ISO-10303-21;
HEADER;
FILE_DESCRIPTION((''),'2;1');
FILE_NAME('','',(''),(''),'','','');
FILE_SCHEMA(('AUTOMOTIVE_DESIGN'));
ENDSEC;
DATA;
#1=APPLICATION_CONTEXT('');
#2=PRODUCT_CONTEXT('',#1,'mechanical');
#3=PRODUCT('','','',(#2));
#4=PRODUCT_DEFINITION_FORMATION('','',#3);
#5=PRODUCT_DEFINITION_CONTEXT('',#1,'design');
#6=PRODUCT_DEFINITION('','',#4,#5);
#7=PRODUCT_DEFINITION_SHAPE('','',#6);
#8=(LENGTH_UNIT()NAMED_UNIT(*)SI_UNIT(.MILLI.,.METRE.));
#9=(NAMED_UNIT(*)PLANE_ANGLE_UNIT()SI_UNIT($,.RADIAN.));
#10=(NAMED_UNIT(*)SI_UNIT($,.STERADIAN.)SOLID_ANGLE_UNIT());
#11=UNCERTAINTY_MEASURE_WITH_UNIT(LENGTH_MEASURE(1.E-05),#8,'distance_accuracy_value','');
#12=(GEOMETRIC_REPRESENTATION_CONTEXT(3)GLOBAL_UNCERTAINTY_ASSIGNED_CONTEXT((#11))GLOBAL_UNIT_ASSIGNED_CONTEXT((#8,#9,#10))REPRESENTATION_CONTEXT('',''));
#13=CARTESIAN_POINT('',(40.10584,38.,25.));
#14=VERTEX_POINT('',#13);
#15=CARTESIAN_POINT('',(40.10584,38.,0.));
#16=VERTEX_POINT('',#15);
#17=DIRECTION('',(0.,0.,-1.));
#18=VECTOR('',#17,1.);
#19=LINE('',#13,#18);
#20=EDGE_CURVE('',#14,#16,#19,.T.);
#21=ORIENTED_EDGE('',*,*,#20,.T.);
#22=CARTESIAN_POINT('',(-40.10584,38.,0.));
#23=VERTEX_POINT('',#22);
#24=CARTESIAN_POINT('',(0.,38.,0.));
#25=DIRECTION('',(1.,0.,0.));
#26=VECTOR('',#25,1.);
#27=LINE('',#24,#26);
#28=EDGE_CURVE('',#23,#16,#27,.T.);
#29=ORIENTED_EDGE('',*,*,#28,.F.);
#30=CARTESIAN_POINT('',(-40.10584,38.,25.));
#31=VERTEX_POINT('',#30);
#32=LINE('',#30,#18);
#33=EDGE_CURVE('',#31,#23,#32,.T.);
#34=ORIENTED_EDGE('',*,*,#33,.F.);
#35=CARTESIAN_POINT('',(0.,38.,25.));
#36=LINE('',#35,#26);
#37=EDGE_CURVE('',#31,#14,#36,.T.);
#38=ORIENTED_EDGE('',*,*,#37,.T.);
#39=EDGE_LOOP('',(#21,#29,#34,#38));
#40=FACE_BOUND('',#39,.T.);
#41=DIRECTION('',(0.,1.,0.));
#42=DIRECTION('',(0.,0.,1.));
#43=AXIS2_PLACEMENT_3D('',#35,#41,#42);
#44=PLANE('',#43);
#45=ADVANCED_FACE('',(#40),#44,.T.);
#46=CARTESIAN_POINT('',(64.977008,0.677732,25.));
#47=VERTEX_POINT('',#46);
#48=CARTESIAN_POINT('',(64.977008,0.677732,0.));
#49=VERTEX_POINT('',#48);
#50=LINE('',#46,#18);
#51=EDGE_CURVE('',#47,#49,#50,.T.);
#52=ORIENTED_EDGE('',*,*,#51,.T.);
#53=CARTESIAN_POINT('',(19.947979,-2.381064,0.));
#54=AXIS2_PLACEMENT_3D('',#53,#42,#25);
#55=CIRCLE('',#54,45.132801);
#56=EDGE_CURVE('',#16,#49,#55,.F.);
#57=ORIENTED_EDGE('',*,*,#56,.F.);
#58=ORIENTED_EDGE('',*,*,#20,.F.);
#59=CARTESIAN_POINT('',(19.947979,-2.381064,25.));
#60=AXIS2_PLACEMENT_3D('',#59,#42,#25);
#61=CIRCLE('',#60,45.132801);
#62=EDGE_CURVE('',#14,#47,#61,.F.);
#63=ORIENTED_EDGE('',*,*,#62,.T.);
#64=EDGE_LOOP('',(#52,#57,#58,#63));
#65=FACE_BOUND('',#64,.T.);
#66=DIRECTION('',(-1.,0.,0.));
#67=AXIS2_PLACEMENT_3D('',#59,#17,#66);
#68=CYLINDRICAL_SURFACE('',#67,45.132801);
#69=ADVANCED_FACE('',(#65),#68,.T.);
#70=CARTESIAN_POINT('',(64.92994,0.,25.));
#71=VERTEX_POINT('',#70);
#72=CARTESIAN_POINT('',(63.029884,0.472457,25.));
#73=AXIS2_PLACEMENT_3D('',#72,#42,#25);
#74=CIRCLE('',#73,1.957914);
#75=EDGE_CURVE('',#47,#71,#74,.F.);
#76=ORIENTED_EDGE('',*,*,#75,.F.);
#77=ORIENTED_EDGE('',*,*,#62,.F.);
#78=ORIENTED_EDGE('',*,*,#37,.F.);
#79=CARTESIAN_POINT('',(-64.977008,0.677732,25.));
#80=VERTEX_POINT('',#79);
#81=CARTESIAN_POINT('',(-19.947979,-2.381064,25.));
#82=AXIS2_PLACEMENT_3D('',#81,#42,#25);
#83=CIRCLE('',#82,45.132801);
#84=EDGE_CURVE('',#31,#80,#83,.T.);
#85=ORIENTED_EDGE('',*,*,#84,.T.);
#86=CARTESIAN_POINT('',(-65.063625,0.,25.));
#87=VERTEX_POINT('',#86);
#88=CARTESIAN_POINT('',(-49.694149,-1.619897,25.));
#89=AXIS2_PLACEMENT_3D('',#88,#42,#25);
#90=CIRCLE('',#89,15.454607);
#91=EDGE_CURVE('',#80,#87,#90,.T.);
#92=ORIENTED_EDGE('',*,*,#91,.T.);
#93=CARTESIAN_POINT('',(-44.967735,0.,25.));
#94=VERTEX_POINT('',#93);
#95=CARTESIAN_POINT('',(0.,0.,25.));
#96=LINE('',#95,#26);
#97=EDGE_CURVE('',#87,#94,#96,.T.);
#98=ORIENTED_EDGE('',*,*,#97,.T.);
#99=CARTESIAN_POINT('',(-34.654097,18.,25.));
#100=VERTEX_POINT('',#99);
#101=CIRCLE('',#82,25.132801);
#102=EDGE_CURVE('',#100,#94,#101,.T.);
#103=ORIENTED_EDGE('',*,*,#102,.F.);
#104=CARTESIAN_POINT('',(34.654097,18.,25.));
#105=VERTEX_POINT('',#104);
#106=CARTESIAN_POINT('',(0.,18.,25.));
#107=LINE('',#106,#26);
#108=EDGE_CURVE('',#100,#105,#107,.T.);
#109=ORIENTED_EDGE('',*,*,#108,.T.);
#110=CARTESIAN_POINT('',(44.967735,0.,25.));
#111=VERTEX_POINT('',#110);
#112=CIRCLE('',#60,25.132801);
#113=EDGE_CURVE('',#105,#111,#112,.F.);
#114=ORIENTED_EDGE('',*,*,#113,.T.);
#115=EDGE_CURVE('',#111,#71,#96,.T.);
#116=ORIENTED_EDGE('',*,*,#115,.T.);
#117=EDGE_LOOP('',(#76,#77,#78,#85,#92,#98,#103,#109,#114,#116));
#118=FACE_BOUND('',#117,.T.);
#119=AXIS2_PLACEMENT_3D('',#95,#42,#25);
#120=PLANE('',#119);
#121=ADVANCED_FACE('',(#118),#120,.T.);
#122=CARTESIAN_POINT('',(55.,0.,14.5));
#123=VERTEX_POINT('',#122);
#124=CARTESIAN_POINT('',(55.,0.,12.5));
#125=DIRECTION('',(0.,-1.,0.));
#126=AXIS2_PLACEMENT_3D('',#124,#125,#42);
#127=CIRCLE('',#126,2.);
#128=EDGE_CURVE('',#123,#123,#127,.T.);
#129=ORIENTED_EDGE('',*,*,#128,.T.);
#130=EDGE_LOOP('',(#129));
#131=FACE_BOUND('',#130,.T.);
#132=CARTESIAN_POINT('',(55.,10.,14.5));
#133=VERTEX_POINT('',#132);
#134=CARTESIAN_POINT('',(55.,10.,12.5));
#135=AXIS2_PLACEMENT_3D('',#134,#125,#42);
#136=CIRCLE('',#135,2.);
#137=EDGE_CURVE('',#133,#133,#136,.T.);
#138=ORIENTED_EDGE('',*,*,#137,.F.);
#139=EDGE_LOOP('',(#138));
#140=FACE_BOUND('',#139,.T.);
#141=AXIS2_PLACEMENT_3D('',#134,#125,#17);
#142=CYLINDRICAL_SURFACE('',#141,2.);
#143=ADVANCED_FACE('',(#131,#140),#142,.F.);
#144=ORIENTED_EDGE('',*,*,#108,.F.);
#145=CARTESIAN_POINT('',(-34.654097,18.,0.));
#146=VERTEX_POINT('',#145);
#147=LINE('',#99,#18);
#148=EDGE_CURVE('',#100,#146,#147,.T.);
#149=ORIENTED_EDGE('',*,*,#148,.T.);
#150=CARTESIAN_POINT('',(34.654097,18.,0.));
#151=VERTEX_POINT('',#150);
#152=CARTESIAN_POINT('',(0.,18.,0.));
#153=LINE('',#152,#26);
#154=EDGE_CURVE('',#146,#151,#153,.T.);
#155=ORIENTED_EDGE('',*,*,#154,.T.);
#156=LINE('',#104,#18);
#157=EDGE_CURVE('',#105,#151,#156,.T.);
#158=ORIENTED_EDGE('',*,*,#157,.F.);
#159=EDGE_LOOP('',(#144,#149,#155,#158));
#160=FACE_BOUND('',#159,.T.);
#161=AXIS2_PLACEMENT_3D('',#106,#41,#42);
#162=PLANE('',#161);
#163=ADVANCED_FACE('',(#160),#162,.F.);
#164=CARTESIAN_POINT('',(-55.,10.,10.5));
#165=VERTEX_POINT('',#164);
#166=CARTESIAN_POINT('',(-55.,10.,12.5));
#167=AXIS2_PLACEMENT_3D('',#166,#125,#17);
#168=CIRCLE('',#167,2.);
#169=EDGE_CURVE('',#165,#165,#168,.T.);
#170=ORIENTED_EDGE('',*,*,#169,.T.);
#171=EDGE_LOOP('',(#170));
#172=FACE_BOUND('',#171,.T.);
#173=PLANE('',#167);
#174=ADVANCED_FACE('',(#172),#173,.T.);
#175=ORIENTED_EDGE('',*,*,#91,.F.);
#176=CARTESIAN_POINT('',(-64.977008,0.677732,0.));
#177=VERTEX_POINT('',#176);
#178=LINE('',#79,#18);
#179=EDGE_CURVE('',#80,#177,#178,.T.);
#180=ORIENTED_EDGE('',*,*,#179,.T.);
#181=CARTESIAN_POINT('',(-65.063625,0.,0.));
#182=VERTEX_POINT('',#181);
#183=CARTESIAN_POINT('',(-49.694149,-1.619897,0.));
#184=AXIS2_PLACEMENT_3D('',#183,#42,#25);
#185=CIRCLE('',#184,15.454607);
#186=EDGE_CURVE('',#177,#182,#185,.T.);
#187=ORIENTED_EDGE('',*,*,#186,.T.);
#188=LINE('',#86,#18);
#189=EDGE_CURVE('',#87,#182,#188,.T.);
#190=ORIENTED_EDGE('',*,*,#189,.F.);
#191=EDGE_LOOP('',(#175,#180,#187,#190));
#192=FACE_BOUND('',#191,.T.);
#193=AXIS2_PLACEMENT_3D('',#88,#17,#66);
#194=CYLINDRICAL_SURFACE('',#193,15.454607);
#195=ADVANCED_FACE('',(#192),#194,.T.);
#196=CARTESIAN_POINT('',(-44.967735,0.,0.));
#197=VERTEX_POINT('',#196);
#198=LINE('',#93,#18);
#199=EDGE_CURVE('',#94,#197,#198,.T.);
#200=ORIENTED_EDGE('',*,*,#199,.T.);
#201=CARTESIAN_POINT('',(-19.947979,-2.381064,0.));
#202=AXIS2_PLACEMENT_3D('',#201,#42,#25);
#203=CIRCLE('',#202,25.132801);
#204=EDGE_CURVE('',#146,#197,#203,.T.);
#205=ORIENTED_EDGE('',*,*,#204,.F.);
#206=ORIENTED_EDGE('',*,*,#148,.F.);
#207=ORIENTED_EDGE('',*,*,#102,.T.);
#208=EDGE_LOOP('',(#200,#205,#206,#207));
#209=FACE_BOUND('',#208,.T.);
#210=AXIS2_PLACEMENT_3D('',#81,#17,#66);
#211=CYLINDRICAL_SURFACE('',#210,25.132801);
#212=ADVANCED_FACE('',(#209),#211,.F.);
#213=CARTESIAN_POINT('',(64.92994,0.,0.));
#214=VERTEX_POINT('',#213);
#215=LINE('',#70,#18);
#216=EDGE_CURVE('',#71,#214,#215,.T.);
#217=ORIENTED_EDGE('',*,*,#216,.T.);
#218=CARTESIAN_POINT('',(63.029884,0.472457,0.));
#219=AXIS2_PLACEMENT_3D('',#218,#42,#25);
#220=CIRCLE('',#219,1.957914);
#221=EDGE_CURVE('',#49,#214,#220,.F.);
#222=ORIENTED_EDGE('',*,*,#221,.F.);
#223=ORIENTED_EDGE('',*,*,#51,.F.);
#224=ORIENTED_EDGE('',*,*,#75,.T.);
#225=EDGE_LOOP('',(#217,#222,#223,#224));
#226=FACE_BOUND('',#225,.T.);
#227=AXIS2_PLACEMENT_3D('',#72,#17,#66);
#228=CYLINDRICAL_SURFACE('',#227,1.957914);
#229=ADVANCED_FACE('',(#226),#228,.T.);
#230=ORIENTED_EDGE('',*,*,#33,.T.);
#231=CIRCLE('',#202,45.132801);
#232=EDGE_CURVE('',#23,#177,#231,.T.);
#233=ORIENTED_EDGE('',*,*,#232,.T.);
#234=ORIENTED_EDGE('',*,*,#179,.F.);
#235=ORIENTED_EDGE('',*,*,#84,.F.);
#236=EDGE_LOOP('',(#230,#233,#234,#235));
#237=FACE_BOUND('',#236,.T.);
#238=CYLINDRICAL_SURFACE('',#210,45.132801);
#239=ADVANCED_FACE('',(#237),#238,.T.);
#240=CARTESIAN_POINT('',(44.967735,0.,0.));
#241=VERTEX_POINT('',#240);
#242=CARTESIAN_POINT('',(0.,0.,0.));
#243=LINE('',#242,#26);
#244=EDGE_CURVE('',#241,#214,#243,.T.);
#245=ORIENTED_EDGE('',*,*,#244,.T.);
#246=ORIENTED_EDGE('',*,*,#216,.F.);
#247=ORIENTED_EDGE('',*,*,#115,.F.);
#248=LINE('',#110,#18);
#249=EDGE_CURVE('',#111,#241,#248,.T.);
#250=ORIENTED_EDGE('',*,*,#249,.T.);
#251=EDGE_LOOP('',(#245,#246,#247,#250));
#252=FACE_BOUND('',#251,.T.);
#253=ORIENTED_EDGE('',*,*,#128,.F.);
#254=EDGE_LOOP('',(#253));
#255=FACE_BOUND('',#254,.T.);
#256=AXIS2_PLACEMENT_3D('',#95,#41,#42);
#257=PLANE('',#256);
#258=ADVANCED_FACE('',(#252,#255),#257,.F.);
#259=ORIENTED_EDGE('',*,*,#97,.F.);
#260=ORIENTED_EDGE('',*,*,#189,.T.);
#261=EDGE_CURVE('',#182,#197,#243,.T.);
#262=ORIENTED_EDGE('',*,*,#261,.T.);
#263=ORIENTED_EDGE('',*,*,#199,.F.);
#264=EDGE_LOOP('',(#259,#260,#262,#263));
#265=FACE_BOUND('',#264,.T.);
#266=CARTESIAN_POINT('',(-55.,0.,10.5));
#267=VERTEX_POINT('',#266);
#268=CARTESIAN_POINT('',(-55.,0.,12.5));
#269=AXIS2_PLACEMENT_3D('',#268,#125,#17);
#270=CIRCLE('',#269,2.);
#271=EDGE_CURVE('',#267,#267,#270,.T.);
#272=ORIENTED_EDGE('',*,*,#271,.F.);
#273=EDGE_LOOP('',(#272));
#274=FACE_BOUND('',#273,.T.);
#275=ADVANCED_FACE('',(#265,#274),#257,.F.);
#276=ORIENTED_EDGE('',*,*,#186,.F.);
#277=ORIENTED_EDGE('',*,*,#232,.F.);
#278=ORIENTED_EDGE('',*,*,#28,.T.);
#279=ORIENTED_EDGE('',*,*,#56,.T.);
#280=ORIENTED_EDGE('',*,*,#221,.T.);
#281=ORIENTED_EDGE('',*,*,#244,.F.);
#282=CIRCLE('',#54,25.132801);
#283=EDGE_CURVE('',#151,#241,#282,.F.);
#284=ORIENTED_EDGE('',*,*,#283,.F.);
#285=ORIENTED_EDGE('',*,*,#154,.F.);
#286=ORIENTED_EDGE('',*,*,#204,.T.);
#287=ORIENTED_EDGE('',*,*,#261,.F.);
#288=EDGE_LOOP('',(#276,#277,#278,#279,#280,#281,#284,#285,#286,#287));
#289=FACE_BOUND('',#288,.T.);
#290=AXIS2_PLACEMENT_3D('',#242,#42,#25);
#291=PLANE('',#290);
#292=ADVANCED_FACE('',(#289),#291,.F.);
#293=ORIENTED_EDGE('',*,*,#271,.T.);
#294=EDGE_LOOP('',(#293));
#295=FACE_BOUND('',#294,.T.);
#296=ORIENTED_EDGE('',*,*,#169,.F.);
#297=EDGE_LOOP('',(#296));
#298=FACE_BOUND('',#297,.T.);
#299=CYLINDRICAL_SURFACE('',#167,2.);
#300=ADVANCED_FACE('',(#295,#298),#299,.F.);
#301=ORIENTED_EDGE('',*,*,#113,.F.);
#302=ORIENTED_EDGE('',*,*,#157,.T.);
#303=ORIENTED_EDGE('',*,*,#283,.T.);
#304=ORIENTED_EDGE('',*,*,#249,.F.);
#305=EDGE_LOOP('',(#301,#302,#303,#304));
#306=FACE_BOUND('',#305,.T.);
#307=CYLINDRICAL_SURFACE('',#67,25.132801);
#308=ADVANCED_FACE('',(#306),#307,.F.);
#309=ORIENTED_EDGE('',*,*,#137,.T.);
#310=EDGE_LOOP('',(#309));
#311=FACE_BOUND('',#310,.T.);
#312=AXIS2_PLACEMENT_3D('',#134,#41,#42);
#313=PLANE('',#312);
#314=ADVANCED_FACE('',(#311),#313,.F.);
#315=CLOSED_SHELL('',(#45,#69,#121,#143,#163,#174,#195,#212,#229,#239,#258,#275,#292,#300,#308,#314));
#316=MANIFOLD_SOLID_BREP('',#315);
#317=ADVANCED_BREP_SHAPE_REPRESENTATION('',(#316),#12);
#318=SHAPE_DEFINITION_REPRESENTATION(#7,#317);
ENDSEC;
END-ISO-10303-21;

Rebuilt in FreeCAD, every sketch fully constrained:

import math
import FreeCAD as App
import Part
import Sketcher
from FreeCAD import Vector

doc = App.newDocument("Part")
body = doc.addObject("PartDesign::Body", "Body")

sketch1 = body.newObject("Sketcher::SketchObject", "Sketch")
sketch1.AttachmentSupport = (doc.getObject("XY_Plane"), [""])
sketch1.MapMode = "FlatFace"
sketch1.addGeometry([
    Part.LineSegment(Vector(-34.654097, 18, 0), Vector(34.654097, 18, 0)),
    Part.ArcOfCircle(Part.Circle(Vector(19.947979, -2.381064, 0), Vector(0, 0, 1), 25.132801), math.radians(5.436314), math.radians(54.187369)),
    Part.LineSegment(Vector(44.967735, 0, 0), Vector(64.92994, 0, 0)),
    Part.ArcOfCircle(Part.Circle(Vector(63.029884, 0.472457, 0), Vector(0, 0, 1), 1.957914), math.radians(-13.963666), math.radians(6.018161)),
    Part.ArcOfCircle(Part.Circle(Vector(19.947979, -2.381064, 0), Vector(0, 0, 1), 45.132801), math.radians(3.886099), math.radians(63.472045)),
    Part.LineSegment(Vector(40.10584, 38, 0), Vector(-40.10584, 38, 0)),
    Part.ArcOfCircle(Part.Circle(Vector(-19.947979, -2.381064, 0), Vector(0, 0, 1), 45.132801), math.radians(116.527955), math.radians(176.113901)),
    Part.ArcOfCircle(Part.Circle(Vector(-49.694147, -1.619897, 0), Vector(0, 0, 1), 15.454608), math.radians(171.450168), math.radians(173.983409)),
    Part.LineSegment(Vector(-65.063625, 0, 0), Vector(-44.967735, 0, 0)),
    Part.ArcOfCircle(Part.Circle(Vector(-19.947979, -2.381064, 0), Vector(0, 0, 1), 25.132801), math.radians(125.812631), math.radians(174.563686)),
], False)
sketch1.addConstraint([
    Sketcher.Constraint("Coincident", 0, 2, 1, 2),
    Sketcher.Constraint("Coincident", 1, 1, 2, 1),
    Sketcher.Constraint("Coincident", 2, 2, 3, 1),
    Sketcher.Constraint("Coincident", 3, 2, 4, 1),
    Sketcher.Constraint("Coincident", 4, 2, 5, 1),
    Sketcher.Constraint("Coincident", 5, 2, 6, 1),
    Sketcher.Constraint("Coincident", 6, 2, 7, 1),
    Sketcher.Constraint("Coincident", 7, 2, 8, 1),
    Sketcher.Constraint("Coincident", 8, 2, 9, 2),
    Sketcher.Constraint("Coincident", 9, 1, 0, 1),
    Sketcher.Constraint("Horizontal", 0),
    Sketcher.Constraint("Horizontal", 2),
    Sketcher.Constraint("Horizontal", 5),
    Sketcher.Constraint("Horizontal", 8),
    Sketcher.Constraint("Coincident", 4, 3, 1, 3),
    Sketcher.Constraint("Coincident", 9, 3, 6, 3),
    Sketcher.Constraint("Equal", 4, 6),
    Sketcher.Constraint("Equal", 1, 9),
    Sketcher.Constraint("Symmetric", 1, 1, 8, 2, -1, 1),
    Sketcher.Constraint("Symmetric", 1, 3, 6, 3, -2),
    Sketcher.Constraint("Horizontal", 3, 2, 6, 2),
    Sketcher.Constraint("DistanceY", -1, 1, 0, 2, 18.0),
    Sketcher.Constraint("DistanceY", -1, 1, 4, 2, 38.0),
    Sketcher.Constraint("Radius", 1, 25.132801),
    Sketcher.Constraint("Radius", 4, 45.132801),
    Sketcher.Constraint("Radius", 7, 15.454608),
    Sketcher.Constraint("Radius", 3, 1.957914),
    Sketcher.Constraint("DistanceX", 5, 2, 5, 1, 80.21168),
    Sketcher.Constraint("DistanceX", 8, 1, 8, 2, 20.09589),
    Sketcher.Constraint("DistanceX", 0, 1, 0, 2, 69.308193),
    Sketcher.Constraint("DistanceX", 2, 1, 2, 2, 19.962205),
    Sketcher.Constraint("DistanceY", 1, 3, 3, 3, 2.853521),
])
pad1 = body.newObject("PartDesign::Pad", "Pad")
pad1.Profile = sketch1
pad1.Length = 25

sketch2 = body.newObject("Sketcher::SketchObject", "Sketch001")
sketch2.AttachmentSupport = (doc.getObject("XZ_Plane"), [""])
sketch2.MapMode = "FlatFace"
sketch2.addGeometry([
    Part.Circle(Vector(-55, 12.5, 0), Vector(0, 0, 1), 2),
    Part.Circle(Vector(55, 12.5, 0), Vector(0, 0, 1), 2),
], False)
sketch2.addConstraint([
    Sketcher.Constraint("Equal", 0, 1),
    Sketcher.Constraint("Symmetric", 0, 3, 1, 3, -2),
    Sketcher.Constraint("Diameter", 0, 4.0),
    Sketcher.Constraint("DistanceX", 0, 3, -1, 1, 55.0),
    Sketcher.Constraint("DistanceY", -1, 1, 0, 3, 12.5),
])
pocket1 = body.newObject("PartDesign::Pocket", "Pocket")
pocket1.Profile = sketch2
pocket1.Length = 10

doc.recompute()
